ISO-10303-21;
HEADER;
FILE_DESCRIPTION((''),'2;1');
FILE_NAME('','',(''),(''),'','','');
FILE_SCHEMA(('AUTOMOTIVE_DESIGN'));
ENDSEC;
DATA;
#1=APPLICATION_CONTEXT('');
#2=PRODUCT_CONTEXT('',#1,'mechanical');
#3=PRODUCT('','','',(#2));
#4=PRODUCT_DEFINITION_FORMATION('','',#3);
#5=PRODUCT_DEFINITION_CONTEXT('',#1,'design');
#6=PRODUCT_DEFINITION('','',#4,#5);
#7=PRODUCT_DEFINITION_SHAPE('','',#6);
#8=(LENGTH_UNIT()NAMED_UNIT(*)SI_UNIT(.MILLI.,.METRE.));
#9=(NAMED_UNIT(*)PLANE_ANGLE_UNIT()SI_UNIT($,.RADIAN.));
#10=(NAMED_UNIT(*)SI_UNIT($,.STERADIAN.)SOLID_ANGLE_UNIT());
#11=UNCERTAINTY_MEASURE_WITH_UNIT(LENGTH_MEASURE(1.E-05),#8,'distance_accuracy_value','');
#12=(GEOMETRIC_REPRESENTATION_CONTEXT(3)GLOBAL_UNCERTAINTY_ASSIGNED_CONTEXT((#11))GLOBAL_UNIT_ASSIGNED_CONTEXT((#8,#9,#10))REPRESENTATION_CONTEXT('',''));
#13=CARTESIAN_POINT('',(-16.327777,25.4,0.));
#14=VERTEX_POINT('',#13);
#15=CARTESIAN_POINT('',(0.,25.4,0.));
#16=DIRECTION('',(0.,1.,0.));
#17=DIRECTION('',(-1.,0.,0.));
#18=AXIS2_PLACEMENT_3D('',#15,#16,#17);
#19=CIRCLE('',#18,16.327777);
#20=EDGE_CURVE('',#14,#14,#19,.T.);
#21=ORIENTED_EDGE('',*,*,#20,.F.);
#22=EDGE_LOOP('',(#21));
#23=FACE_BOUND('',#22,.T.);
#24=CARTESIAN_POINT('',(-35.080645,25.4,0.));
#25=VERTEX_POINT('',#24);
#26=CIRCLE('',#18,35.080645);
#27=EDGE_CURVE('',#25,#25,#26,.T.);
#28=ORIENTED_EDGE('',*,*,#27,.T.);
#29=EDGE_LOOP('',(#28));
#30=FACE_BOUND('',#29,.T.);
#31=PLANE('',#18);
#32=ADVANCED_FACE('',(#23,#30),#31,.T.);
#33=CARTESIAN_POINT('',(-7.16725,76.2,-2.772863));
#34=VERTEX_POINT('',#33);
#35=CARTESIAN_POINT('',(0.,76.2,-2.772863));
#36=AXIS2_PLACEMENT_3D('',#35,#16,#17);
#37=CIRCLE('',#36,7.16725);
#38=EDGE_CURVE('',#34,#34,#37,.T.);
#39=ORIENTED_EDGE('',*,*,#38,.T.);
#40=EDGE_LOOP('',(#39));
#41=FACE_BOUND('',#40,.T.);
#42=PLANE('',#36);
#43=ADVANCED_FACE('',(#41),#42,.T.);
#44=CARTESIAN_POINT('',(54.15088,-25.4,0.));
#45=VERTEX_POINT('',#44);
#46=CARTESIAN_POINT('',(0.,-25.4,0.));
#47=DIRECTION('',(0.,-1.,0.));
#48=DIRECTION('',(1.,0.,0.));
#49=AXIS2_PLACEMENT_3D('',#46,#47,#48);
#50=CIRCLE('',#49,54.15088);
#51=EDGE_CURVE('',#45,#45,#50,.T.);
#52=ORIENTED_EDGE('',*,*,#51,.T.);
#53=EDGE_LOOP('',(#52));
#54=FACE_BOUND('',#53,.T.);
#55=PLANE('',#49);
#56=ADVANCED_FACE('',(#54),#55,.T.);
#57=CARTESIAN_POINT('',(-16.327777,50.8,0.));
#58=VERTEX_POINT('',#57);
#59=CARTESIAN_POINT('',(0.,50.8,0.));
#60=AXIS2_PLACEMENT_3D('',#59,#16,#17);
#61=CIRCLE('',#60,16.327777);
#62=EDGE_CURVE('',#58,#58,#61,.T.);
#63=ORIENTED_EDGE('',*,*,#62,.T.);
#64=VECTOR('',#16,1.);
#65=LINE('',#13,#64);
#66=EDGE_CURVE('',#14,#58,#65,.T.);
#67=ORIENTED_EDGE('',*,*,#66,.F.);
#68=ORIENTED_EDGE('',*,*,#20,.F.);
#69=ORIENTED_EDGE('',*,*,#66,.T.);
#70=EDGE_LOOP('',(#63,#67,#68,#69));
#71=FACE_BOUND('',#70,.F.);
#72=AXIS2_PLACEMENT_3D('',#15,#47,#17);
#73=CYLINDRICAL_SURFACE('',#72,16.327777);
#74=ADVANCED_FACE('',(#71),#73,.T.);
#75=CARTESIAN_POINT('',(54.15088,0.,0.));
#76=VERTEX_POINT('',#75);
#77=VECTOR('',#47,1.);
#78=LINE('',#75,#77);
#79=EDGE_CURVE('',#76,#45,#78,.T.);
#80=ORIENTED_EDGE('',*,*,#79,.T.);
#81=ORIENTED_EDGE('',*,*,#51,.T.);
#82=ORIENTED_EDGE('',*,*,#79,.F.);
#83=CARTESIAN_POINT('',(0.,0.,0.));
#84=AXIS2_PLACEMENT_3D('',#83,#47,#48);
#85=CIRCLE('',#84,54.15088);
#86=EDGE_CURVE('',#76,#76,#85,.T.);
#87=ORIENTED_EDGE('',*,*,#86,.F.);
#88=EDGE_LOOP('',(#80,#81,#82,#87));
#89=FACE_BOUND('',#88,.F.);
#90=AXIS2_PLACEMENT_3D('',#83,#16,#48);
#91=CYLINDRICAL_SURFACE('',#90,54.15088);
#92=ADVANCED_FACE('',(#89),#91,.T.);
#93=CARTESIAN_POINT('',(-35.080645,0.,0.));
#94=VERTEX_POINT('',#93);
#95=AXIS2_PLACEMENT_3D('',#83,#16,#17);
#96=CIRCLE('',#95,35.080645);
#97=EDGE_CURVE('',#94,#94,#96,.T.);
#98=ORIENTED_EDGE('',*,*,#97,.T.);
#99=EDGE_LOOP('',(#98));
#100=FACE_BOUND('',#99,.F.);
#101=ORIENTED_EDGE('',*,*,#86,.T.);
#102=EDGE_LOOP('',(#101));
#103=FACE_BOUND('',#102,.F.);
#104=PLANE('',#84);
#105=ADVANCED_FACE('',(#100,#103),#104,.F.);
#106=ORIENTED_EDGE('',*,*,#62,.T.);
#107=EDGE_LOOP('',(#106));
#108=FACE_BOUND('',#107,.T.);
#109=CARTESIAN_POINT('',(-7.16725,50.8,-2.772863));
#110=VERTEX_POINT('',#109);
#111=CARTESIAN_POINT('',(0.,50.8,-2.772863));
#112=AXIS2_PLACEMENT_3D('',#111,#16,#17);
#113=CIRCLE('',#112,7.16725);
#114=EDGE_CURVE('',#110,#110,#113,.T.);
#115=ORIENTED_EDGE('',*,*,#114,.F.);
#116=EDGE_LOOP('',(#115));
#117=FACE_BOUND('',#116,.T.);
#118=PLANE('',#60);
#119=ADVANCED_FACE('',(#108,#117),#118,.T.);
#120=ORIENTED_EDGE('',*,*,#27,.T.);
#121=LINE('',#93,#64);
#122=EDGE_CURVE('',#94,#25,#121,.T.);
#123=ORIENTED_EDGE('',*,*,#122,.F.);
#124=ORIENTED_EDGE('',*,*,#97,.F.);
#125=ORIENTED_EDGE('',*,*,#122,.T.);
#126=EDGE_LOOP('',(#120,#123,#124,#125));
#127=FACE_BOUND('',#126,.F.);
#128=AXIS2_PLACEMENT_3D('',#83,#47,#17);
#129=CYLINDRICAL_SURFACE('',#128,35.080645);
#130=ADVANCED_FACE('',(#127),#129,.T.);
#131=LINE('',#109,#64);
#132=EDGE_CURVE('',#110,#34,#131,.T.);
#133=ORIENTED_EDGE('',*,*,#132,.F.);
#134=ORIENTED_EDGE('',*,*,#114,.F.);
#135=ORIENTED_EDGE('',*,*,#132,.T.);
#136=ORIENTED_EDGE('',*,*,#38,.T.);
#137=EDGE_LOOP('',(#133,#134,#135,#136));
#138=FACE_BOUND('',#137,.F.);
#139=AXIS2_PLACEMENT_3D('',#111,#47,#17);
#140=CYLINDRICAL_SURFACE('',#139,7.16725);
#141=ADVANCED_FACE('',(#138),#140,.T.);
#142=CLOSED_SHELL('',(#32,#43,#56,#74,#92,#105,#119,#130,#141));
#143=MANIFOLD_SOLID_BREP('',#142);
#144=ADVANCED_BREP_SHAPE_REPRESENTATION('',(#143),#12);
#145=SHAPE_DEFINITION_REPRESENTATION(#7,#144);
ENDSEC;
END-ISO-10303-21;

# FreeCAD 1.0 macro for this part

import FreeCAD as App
import Part
import Sketcher
Q = App.Units.Quantity

doc = App.newDocument("Part")
body = doc.addObject("PartDesign::Body", "Body")

sketch1 = body.newObject("Sketcher::SketchObject", "Sketch")
sketch1.AttachmentSupport = (doc.getObject("XZ_Plane"), [""])
sketch1.MapMode = "FlatFace"
sketch1.addGeometry(Part.Circle(App.Vector(0, 0, 0), App.Vector(0, 0, 1), 54), False)
sketch1.addConstraint([
    Sketcher.Constraint("Coincident", 0, 3, -1, 1),
    Sketcher.Constraint("Diameter", 0, 108.30176),
])
pad1 = body.newObject("PartDesign::Pad", "Pad")
pad1.Profile = sketch1
pad1.Length = Q("1 in")

sketch2 = body.newObject("Sketcher::SketchObject", "Sketch001")
sketch2.AttachmentSupport = (doc.getObject("XZ_Plane"), [""])
sketch2.MapMode = "FlatFace"
sketch2.addGeometry(Part.Circle(App.Vector(0, 0, 0), App.Vector(0, 0, 1), 35), False)
sketch2.addConstraint([
    Sketcher.Constraint("Coincident", 0, 3, -1, 1),
    Sketcher.Constraint("Diameter", 0, 70.16129),
])
pad2 = body.newObject("PartDesign::Pad", "Pad001")
pad2.Profile = sketch2
pad2.Length = Q("1 in")
pad2.Reversed = True

sketch3 = body.newObject("Sketcher::SketchObject", "Sketch002")
sketch3.AttachmentSupport = (doc.getObject("XZ_Plane"), [""])
sketch3.MapMode = "FlatFace"
sketch3.AttachmentOffset = App.Placement(App.Vector(0, 0, -1 * 25.4), App.Rotation())
sketch3.addGeometry(Part.Circle(App.Vector(0, 0, 0), App.Vector(0, 0, 1), 16), False)
sketch3.addConstraint([
    Sketcher.Constraint("Coincident", 0, 3, -1, 1),
    Sketcher.Constraint("Diameter", 0, 32.655554),
])
pad3 = body.newObject("PartDesign::Pad", "Pad002")
pad3.Profile = sketch3
pad3.Length = Q("1 in")
pad3.Reversed = True

sketch4 = body.newObject("Sketcher::SketchObject", "Sketch003")
sketch4.AttachmentSupport = (doc.getObject("XZ_Plane"), [""])
sketch4.MapMode = "FlatFace"
sketch4.AttachmentOffset = App.Placement(App.Vector(0, 0, -2 * 25.4), App.Rotation())
sketch4.addGeometry(Part.Circle(App.Vector(0, -3, 0), App.Vector(0, 0, 1), 7), False)
sketch4.addConstraint([
    Sketcher.Constraint("PointOnObject", 0, 3, -2),
    Sketcher.Constraint("Diameter", 0, 14.3345),
    Sketcher.Constraint("DistanceY", 0, 3, -1, 1, 2.772863),
])
pad4 = body.newObject("PartDesign::Pad", "Pad003")
pad4.Profile = sketch4
pad4.Length = Q("1 in")
pad4.Reversed = True

doc.recompute()
